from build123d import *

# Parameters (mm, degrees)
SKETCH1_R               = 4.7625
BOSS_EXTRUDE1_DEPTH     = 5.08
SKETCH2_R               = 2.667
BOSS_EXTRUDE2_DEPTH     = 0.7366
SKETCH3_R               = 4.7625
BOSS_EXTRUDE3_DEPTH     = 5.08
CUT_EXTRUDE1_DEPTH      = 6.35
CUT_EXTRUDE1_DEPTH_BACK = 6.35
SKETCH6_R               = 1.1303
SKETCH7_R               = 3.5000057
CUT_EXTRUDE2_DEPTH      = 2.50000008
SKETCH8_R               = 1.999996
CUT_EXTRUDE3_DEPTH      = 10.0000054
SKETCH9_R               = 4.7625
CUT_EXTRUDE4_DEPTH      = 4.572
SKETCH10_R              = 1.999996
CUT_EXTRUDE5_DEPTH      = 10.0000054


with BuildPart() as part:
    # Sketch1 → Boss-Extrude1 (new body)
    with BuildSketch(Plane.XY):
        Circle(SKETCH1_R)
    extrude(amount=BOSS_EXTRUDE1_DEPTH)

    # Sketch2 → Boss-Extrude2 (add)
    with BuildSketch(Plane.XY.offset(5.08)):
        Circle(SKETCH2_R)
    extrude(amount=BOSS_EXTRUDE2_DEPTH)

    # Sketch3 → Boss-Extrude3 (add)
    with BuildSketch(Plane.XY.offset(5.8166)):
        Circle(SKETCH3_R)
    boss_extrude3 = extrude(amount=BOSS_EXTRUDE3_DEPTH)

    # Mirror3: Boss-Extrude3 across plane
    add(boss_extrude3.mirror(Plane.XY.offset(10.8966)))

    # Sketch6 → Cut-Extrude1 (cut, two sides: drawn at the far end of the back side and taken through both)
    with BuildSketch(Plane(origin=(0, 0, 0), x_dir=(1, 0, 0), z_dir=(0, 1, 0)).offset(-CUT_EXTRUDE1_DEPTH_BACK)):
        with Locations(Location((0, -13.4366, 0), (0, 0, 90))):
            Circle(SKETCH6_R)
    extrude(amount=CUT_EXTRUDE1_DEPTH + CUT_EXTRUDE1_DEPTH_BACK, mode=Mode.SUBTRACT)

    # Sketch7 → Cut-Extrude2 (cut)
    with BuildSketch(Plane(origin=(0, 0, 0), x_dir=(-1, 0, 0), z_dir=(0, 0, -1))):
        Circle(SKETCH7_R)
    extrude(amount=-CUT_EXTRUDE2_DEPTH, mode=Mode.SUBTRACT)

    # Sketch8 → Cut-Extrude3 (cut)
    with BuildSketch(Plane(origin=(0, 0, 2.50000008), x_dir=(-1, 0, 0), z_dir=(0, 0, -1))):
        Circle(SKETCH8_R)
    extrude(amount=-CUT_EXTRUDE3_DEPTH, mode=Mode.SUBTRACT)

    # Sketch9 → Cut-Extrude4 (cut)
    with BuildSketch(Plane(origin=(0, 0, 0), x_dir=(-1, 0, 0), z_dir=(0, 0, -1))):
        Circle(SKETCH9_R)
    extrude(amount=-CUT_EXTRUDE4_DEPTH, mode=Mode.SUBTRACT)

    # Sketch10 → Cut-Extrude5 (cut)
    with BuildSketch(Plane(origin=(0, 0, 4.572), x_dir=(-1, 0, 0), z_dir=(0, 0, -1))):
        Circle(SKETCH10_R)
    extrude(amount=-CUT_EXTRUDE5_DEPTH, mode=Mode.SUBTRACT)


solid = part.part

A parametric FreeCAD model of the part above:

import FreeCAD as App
import Part
import Sketcher
from FreeCAD import Vector
Q = App.Units.Quantity

doc = App.newDocument("Part")
body = doc.addObject("PartDesign::Body", "Body")

# Sketch on XY plane
sketch1 = doc.addObject("Sketcher::SketchObject", "Sketch")
body.addObject(sketch1)
sketch1.AttachmentSupport = (doc.XY_Plane, [""])
sketch1.MapMode = "FlatFace"
sketch1.addGeometry(Part.Circle(Vector(0, 0, 0), Vector(0, 0, 1), 4.8), False)
sketch1.addConstraint([
    Sketcher.Constraint("Coincident", 0, 3, -1, 1),
    Sketcher.Constraint("Diameter", 0, Q("0.375 in")),
])
pad1 = doc.addObject("PartDesign::Pad", "Pad")
body.addObject(pad1)
pad1.Profile = sketch1
pad1.Length = Q("0.2 in")

# Sketch on XY plane
sketch2 = doc.addObject("Sketcher::SketchObject", "Sketch001")
body.addObject(sketch2)
sketch2.AttachmentSupport = (doc.XY_Plane, [""])
sketch2.MapMode = "FlatFace"
sketch2.AttachmentOffset = App.Placement(Vector(0, 0, 0.2 * 25.4), App.Rotation())
sketch2.addGeometry(Part.Circle(Vector(0, 0, 0), Vector(0, 0, 1), 2.7), False)
sketch2.addConstraint([
    Sketcher.Constraint("Coincident", 0, 3, -1, 1),
    Sketcher.Constraint("Diameter", 0, Q("0.21 in")),
])
pad2 = doc.addObject("PartDesign::Pad", "Pad001")
body.addObject(pad2)
pad2.Profile = sketch2
pad2.Length = Q("0.029 in")

# Sketch on XY plane
sketch3 = doc.addObject("Sketcher::SketchObject", "Sketch002")
body.addObject(sketch3)
sketch3.AttachmentSupport = (doc.XY_Plane, [""])
sketch3.MapMode = "FlatFace"
sketch3.AttachmentOffset = App.Placement(Vector(0, 0, 0.229 * 25.4), App.Rotation())
sketch3.addGeometry(Part.Circle(Vector(0, 0, 0), Vector(0, 0, 1), 4.8), False)
sketch3.addConstraint([
    Sketcher.Constraint("Coincident", 0, 3, -1, 1),
    Sketcher.Constraint("Diameter", 0, Q("0.375 in")),
])
pad3 = doc.addObject("PartDesign::Pad", "Pad002")
body.addObject(pad3)
pad3.Profile = sketch3
pad3.Length = Q("0.2 in")
doc.recompute()

datumplane = doc.addObject("PartDesign::Plane", "DatumPlane")
body.addObject(datumplane)
datumplane.AttachmentSupport = (doc.XY_Plane, [""])
datumplane.MapMode = "FlatFace"
datumplane.AttachmentOffset = App.Placement(Vector(0, 0, 0.429 * 25.4), App.Rotation())
mirrored = doc.addObject("PartDesign::Mirrored", "Mirrored")
body.addObject(mirrored)
mirrored.Originals = [pad3]
mirrored.MirrorPlane = (datumplane, [""])
body.Tip = mirrored

# Sketch on XZ plane
sketch4 = doc.addObject("Sketcher::SketchObject", "Sketch003")
body.addObject(sketch4)
sketch4.AttachmentSupport = (doc.XZ_Plane, [""])
sketch4.MapMode = "FlatFace"
sketch4.addGeometry(Part.Circle(Vector(0, 13.4, 0), Vector(0, 0, 1), 1.1), False)
sketch4.addConstraint([
    Sketcher.Constraint("PointOnObject", 0, 3, -2),
    Sketcher.Constraint("Diameter", 0, Q("0.089 in")),
    Sketcher.Constraint("DistanceY", -1, 1, 0, 3, Q("0.529 in")),
])
pocket1 = doc.addObject("PartDesign::Pocket", "Pocket")
body.addObject(pocket1)
pocket1.Profile = sketch4
pocket1.Type = "ThroughAll"
pocket1.Midplane = True

# Sketch on XY plane
sketch5 = doc.addObject("Sketcher::SketchObject", "Sketch004")
body.addObject(sketch5)
sketch5.AttachmentSupport = (doc.XY_Plane, [""])
sketch5.MapMode = "FlatFace"
sketch5.addGeometry(Part.Circle(Vector(0, 0, 0), Vector(0, 0, 1), 3.5), False)
sketch5.addConstraint([
    Sketcher.Constraint("Coincident", 0, 3, -1, 1),
    Sketcher.Constraint("Diameter", 0, 7.000011),
])
pocket2 = doc.addObject("PartDesign::Pocket", "Pocket001")
body.addObject(pocket2)
pocket2.Profile = sketch5
pocket2.Length = 2.5
pocket2.Reversed = True

# Sketch on XY plane
sketch6 = doc.addObject("Sketcher::SketchObject", "Sketch005")
body.addObject(sketch6)
sketch6.AttachmentSupport = (doc.XY_Plane, [""])
sketch6.MapMode = "FlatFace"
sketch6.AttachmentOffset = App.Placement(Vector(0, 0, 2.5), App.Rotation())
sketch6.addGeometry(Part.Circle(Vector(0, 0, 0), Vector(0, 0, 1), 2), False)
sketch6.addConstraint([
    Sketcher.Constraint("Coincident", 0, 3, -1, 1),
    Sketcher.Constraint("Diameter", 0, 3.999992),
])
pocket3 = doc.addObject("PartDesign::Pocket", "Pocket002")
body.addObject(pocket3)
pocket3.Profile = sketch6
pocket3.Length = 10.000005
pocket3.Reversed = True

# Sketch on XY plane
sketch7 = doc.addObject("Sketcher::SketchObject", "Sketch006")
body.addObject(sketch7)
sketch7.AttachmentSupport = (doc.XY_Plane, [""])
sketch7.MapMode = "FlatFace"
sketch7.addGeometry(Part.Circle(Vector(0, 0, 0), Vector(0, 0, 1), 4.8), False)
sketch7.addConstraint([
    Sketcher.Constraint("Coincident", 0, 3, -1, 1),
    Sketcher.Constraint("Diameter", 0, Q("0.375 in")),
])
pocket4 = doc.addObject("PartDesign::Pocket", "Pocket003")
body.addObject(pocket4)
pocket4.Profile = sketch7
pocket4.Length = Q("0.18 in")
pocket4.Reversed = True

# Sketch on XY plane
sketch8 = doc.addObject("Sketcher::SketchObject", "Sketch007")
body.addObject(sketch8)
sketch8.AttachmentSupport = (doc.XY_Plane, [""])
sketch8.MapMode = "FlatFace"
sketch8.AttachmentOffset = App.Placement(Vector(0, 0, 0.18 * 25.4), App.Rotation())
sketch8.addGeometry(Part.Circle(Vector(0, 0, 0), Vector(0, 0, 1), 2), False)
sketch8.addConstraint([
    Sketcher.Constraint("Coincident", 0, 3, -1, 1),
    Sketcher.Constraint("Diameter", 0, 3.999992),
])
pocket5 = doc.addObject("PartDesign::Pocket", "Pocket004")
body.addObject(pocket5)
pocket5.Profile = sketch8
pocket5.Length = 10.000005
pocket5.Reversed = True

doc.recompute()
